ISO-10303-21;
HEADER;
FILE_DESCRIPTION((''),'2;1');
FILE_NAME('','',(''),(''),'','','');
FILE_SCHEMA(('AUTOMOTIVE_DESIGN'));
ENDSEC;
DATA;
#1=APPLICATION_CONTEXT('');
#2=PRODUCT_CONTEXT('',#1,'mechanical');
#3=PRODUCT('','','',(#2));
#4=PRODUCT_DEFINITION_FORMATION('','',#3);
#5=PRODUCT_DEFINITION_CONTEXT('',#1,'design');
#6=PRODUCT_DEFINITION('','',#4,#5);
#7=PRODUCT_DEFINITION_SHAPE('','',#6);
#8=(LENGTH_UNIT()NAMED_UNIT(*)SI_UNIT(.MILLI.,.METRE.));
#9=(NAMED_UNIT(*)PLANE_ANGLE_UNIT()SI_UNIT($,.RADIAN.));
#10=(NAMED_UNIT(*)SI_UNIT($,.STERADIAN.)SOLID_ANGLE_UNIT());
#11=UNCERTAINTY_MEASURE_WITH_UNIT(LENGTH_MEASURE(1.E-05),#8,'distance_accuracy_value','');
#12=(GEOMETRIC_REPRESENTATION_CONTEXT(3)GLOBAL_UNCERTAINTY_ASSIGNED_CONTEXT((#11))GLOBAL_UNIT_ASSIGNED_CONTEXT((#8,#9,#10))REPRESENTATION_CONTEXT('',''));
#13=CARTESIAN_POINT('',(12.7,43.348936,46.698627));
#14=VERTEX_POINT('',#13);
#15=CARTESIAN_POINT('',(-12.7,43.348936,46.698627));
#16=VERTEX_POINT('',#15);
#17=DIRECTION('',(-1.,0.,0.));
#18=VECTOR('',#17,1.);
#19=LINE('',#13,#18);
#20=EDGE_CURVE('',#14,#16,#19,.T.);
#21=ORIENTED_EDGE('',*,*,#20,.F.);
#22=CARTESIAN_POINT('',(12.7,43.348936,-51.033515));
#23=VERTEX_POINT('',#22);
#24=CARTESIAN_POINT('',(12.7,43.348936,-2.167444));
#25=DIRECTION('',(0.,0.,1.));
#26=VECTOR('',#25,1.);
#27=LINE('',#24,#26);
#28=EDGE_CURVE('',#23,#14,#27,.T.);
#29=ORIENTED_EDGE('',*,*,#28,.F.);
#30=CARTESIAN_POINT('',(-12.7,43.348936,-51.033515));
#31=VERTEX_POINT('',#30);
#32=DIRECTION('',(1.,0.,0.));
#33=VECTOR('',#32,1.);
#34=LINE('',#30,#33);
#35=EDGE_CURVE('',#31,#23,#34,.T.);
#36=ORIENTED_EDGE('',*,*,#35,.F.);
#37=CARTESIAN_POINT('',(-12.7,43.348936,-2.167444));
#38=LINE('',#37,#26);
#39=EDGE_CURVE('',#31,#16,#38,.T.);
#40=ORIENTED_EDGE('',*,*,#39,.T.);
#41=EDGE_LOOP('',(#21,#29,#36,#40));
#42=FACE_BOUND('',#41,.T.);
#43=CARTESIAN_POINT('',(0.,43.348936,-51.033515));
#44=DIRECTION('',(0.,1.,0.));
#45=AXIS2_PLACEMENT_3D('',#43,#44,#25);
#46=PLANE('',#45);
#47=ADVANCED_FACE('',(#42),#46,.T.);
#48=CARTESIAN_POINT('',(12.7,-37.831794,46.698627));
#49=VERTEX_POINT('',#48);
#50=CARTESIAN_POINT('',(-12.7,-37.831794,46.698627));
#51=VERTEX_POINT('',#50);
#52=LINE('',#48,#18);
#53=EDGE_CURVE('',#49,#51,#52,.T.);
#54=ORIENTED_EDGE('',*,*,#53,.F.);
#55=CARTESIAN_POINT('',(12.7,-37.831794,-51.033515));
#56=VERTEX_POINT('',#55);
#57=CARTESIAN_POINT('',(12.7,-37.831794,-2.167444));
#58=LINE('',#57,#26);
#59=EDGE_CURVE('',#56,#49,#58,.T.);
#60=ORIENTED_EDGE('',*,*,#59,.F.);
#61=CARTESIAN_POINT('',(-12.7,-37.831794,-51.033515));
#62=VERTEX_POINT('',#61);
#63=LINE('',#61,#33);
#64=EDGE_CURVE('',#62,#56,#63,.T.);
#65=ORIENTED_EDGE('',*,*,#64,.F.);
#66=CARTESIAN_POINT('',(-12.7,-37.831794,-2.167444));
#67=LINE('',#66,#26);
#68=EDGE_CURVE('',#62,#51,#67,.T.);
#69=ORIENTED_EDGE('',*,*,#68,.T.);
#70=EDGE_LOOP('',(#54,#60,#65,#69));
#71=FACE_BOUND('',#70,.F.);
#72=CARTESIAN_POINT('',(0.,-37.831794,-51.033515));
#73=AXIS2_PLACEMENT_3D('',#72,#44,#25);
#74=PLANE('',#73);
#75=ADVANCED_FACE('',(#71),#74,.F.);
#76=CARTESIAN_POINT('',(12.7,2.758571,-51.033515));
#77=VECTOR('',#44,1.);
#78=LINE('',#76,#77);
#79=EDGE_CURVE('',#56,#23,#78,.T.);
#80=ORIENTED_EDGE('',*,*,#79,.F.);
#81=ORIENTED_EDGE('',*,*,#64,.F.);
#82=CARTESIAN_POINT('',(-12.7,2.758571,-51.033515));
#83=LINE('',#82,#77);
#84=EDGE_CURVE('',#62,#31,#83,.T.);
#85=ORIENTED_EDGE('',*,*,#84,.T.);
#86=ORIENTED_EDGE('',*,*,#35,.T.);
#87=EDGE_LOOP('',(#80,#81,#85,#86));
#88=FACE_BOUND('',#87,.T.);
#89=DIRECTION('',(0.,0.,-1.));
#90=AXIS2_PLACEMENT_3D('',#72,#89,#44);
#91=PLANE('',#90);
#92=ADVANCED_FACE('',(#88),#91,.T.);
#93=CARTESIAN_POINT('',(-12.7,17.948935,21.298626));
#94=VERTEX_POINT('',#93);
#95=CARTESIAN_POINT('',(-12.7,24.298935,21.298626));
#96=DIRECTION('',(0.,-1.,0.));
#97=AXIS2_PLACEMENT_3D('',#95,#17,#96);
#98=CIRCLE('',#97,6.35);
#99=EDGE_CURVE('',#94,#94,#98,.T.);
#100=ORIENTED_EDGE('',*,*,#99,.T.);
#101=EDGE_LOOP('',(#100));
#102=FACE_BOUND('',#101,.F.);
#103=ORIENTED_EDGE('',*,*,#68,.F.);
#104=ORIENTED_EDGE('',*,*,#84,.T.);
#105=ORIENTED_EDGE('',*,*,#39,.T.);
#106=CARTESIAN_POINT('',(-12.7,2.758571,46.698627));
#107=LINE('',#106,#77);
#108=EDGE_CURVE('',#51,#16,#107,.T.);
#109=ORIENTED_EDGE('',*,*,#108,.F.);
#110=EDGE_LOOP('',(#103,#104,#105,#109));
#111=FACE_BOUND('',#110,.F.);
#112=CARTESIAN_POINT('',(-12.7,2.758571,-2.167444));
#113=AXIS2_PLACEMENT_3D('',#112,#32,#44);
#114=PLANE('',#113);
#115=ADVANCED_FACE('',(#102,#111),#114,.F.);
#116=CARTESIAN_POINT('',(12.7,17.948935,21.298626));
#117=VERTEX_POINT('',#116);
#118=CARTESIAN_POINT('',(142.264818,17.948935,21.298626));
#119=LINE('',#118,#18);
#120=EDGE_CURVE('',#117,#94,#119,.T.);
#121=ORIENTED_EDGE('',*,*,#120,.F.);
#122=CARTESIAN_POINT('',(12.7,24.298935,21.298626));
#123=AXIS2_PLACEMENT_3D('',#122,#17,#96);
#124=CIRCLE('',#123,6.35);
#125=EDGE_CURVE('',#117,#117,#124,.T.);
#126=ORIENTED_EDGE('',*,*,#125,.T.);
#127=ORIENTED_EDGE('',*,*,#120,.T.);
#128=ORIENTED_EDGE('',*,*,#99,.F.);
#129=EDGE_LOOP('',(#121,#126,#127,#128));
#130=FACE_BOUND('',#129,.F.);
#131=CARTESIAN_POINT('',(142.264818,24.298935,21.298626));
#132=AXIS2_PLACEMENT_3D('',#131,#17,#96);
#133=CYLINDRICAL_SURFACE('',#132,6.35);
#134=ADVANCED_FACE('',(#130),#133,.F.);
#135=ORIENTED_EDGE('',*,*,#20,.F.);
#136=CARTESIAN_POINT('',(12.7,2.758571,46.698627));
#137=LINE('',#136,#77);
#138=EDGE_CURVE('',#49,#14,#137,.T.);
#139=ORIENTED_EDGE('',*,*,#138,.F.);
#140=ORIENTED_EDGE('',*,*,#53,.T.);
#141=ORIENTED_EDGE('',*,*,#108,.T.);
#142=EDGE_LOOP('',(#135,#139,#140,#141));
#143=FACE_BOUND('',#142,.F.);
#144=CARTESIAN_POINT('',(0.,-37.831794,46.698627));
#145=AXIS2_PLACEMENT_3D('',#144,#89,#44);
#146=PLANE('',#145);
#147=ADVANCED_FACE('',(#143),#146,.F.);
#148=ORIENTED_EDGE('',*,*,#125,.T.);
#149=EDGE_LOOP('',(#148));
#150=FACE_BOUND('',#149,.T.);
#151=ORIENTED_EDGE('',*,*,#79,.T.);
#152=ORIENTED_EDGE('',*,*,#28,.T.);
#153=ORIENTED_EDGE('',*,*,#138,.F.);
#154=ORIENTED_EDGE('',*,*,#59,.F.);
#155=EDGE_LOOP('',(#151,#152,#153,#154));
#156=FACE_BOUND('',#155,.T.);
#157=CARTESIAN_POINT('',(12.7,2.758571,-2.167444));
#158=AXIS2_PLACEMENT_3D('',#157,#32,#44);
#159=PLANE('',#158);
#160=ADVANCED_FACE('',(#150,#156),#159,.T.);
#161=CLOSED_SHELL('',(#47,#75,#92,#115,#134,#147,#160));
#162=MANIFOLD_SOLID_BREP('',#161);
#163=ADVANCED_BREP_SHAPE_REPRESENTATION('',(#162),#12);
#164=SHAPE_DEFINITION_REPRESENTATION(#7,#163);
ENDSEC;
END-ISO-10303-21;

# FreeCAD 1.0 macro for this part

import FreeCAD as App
import Part
import Sketcher
from FreeCAD import Vector
Q = App.Units.Quantity

doc = App.newDocument("Part")
body = doc.addObject("PartDesign::Body", "Body")

# Sketch on YZ plane
sketch1 = body.newObject("Sketcher::SketchObject", "Sketch")
sketch1.AttachmentSupport = (doc.getObject("YZ_Plane"), [""])
sketch1.MapMode = "FlatFace"
sketch1.addGeometry([
    Part.LineSegment(Vector(-38, 47, 0), Vector(-38, -51, 0)),
    Part.LineSegment(Vector(-38, -51, 0), Vector(43, -51, 0)),
    Part.LineSegment(Vector(43, -51, 0), Vector(43, 47, 0)),
    Part.LineSegment(Vector(43, 47, 0), Vector(-38, 47, 0)),
], False)
sketch1.addConstraint([
    Sketcher.Constraint("Coincident", 0, 2, 1, 1),
    Sketcher.Constraint("Coincident", 1, 2, 2, 1),
    Sketcher.Constraint("Coincident", 2, 2, 3, 1),
    Sketcher.Constraint("Coincident", 3, 2, 0, 1),
    Sketcher.Constraint("Vertical", 0),
    Sketcher.Constraint("Horizontal", 1),
    Sketcher.Constraint("Vertical", 2),
    Sketcher.Constraint("Horizontal", 3),
    Sketcher.Constraint("DistanceX", 1, 1, 1, 2, 81.180729),
    Sketcher.Constraint("DistanceY", 0, 2, 0, 1, 97.732141),
    Sketcher.Constraint("DistanceX", 0, 2, -1, 1, 37.831794),
    Sketcher.Constraint("DistanceY", 0, 2, -1, 1, 51.033515),
])
pad1 = body.newObject("PartDesign::Pad", "Pad")
pad1.Profile = sketch1
pad1.Length = Q("1 in")
pad1.Midplane = True

# Sketch on YZ plane
sketch2 = body.newObject("Sketcher::SketchObject", "Sketch001")
sketch2.AttachmentSupport = (doc.getObject("YZ_Plane"), [""])
sketch2.MapMode = "FlatFace"
sketch2.AttachmentOffset = App.Placement(Vector(0, 0, 0.5 * 25.4), App.Rotation())
sketch2.addGeometry(Part.Circle(Vector(24, 21, 0), Vector(0, 0, 1), 6), False)
sketch2.addConstraint([
    Sketcher.Constraint("Diameter", 0, Q("0.5 in")),
    Sketcher.Constraint("DistanceX", -1, 1, 0, 3, 24.298935),
    Sketcher.Constraint("DistanceY", -1, 1, 0, 3, 21.298626),
])
doc.recompute()
hole = body.newObject("PartDesign::Hole", "Hole")
hole.Profile = sketch2
hole.ThreadType = "None"
hole.Diameter = Q("0.5 in")
hole.DepthType = "ThroughAll"

doc.recompute()
